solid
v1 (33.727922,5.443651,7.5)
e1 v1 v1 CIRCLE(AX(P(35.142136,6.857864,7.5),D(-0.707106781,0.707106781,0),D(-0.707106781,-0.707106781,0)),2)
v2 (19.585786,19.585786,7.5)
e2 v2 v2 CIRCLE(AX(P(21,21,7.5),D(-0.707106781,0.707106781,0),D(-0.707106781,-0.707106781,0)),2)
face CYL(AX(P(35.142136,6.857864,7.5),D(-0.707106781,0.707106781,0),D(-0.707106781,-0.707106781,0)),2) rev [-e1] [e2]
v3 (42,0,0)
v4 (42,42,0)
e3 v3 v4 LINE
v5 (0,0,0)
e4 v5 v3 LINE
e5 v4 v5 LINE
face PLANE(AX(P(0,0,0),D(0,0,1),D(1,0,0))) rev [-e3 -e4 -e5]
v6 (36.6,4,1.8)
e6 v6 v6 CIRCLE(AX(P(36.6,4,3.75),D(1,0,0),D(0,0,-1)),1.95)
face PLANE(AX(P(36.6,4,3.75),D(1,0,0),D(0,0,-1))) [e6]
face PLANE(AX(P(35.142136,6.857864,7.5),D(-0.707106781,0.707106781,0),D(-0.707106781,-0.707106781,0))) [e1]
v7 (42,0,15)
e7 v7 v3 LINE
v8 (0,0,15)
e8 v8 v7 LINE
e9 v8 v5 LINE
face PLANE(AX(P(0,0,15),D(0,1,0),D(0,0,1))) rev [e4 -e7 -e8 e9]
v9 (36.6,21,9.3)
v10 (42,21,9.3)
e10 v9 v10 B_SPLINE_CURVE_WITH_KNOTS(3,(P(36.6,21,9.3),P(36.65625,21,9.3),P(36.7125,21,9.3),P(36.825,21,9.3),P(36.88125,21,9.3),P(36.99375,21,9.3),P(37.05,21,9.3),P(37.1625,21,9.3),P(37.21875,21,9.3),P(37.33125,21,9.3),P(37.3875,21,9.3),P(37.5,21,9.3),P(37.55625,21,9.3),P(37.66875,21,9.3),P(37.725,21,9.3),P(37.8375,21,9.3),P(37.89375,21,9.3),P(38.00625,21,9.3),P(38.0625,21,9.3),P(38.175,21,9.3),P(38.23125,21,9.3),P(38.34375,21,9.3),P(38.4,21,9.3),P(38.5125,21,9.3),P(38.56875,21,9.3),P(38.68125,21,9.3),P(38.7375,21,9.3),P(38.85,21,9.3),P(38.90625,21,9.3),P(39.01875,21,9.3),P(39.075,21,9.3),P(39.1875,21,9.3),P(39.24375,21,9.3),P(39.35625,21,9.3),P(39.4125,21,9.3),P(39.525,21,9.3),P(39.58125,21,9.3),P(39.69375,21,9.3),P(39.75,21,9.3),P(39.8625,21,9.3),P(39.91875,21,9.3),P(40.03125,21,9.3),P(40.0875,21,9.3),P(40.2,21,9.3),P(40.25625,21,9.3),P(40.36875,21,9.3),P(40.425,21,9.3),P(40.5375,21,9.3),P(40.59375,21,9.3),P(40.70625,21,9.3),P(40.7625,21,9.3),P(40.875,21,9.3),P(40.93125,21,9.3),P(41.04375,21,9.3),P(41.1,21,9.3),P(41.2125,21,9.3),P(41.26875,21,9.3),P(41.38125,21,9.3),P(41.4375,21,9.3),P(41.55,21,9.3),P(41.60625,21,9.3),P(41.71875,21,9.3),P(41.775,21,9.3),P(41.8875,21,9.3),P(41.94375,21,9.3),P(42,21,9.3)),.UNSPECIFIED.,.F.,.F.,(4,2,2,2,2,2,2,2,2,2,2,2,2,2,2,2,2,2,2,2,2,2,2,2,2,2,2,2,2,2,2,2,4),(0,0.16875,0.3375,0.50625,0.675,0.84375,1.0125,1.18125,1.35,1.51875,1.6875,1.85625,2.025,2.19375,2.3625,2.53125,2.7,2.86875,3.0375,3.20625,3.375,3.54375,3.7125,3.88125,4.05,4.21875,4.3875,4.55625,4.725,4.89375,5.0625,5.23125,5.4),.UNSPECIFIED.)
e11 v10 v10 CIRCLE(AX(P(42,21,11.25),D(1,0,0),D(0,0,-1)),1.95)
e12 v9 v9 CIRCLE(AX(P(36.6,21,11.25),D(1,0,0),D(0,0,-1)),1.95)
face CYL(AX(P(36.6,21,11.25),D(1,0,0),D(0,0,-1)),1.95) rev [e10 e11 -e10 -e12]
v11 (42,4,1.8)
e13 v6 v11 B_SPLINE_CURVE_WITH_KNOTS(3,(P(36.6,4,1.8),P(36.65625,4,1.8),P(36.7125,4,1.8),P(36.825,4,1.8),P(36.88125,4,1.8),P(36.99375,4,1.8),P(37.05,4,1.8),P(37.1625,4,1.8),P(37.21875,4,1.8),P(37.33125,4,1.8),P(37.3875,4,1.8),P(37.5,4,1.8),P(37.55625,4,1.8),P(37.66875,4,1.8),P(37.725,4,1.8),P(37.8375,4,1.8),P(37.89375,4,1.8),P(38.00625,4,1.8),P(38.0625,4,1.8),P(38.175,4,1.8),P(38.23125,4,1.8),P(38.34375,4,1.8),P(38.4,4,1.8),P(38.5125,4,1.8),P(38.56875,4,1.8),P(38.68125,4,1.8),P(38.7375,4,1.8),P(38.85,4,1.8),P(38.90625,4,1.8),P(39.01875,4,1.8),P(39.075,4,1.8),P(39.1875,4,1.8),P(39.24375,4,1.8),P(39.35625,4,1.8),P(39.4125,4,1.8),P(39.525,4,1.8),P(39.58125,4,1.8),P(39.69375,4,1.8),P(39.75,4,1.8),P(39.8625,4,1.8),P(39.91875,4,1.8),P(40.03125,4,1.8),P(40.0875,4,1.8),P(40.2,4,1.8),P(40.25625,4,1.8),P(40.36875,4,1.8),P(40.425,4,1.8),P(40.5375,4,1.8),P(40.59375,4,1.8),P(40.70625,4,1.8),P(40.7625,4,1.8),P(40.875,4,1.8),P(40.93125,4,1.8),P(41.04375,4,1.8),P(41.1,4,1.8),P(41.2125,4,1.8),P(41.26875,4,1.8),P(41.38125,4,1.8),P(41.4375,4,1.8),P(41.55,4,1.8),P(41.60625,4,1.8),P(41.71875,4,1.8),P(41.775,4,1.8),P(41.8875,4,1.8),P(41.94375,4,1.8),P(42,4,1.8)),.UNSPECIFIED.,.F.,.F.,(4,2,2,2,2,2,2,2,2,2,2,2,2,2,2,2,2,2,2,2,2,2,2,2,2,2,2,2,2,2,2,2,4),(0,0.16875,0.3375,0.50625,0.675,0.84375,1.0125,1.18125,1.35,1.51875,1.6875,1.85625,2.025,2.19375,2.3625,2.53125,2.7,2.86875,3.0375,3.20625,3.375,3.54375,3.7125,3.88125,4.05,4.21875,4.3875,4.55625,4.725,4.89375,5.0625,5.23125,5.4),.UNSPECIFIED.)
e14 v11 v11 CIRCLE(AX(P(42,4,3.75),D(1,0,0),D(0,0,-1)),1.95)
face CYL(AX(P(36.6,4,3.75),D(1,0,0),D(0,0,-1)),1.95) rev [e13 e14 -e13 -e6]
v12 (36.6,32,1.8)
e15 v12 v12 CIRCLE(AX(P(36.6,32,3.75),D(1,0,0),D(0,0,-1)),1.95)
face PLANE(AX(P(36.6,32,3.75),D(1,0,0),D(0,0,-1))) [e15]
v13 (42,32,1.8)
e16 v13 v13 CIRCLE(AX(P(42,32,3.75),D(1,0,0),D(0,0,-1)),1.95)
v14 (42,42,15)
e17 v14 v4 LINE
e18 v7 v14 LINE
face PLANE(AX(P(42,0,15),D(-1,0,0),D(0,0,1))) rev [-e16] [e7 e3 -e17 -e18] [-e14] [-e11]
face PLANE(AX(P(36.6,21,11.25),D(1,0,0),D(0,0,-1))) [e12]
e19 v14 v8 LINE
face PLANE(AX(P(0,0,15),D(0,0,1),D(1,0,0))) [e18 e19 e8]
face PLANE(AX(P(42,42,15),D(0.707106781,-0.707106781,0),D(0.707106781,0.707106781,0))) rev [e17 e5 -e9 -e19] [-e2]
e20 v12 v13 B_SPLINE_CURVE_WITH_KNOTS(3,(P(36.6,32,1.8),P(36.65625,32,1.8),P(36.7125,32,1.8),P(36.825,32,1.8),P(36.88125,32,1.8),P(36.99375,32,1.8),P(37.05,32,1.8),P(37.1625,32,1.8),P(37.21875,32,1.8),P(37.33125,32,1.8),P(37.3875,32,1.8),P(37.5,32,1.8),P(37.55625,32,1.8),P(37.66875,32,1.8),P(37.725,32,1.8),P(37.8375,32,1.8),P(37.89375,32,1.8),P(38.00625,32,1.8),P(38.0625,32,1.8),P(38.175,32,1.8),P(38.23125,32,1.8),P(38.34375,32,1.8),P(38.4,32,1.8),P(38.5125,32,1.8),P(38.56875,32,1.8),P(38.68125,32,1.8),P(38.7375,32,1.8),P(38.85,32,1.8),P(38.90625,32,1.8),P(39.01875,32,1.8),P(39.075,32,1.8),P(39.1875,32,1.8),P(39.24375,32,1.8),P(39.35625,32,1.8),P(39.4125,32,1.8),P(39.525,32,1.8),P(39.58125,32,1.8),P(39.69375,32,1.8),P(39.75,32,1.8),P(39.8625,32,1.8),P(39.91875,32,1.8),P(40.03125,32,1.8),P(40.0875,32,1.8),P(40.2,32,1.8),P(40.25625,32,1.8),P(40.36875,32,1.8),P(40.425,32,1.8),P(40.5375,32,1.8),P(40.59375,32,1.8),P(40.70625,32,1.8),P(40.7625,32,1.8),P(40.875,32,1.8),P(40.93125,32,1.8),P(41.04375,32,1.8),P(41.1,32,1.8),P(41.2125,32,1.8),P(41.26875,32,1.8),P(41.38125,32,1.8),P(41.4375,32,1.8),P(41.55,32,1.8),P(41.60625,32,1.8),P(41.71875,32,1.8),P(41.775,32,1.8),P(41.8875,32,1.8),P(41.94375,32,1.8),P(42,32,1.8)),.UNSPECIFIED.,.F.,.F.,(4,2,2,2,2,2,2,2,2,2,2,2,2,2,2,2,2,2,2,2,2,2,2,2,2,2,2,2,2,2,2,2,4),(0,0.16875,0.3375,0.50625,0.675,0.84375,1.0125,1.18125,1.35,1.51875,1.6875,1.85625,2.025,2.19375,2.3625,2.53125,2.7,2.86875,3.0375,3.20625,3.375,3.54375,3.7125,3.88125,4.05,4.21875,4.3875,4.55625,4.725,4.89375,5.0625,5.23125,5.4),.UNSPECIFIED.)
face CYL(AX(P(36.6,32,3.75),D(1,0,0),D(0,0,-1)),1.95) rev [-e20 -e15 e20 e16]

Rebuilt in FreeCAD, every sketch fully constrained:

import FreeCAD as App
import Part
import Sketcher

V = App.Vector
Q = App.Units.Quantity

doc = App.newDocument("Part")
body = doc.addObject("PartDesign::Body", "Body")

# Sketch on XY plane
sketch1 = body.newObject("Sketcher::SketchObject", "Sketch")
sketch1.AttachmentSupport = (doc.getObject("XY_Plane"), [""])
sketch1.MapMode = "FlatFace"
sketch1.addGeometry([
    Part.LineSegment(V(0, 0, 0), V(42, 0, 0)),
    Part.LineSegment(V(42, 0, 0), V(42, 42, 0)),
    Part.LineSegment(V(42, 42, 0), V(0, 0, 0)),
], False)
sketch1.addConstraint([
    Sketcher.Constraint("Coincident", 0, 2, 1, 1),
    Sketcher.Constraint("Coincident", 1, 2, 2, 1),
    Sketcher.Constraint("Coincident", 2, 2, 0, 1),
    Sketcher.Constraint("Horizontal", 0),
    Sketcher.Constraint("Vertical", 1),
    Sketcher.Constraint("Coincident", 2, 2, -1, 1),
    Sketcher.Constraint("Equal", 0, 1),
    Sketcher.Constraint("DistanceX", 0, 1, 0, 2, Q("42 mm")),
])
pad1 = body.newObject("PartDesign::Pad", "Pad")
pad1.Profile = sketch1
pad1.Length = 15

# Sketch on an angled plane
sketch2 = body.newObject("Sketcher::SketchObject", "Sketch001")
sketch2.Placement = App.Placement(V(0, 0, 0), App.Rotation(V(0, 0, 1), V(0.707106781, 0.707106781, 0), V(-0.707106781, 0.707106781, 0), "ZXY"))
sketch2.addGeometry(Part.Circle(V(7.5, 29.698485, 0), V(0, 0, 1), 2), False)
sketch2.addConstraint([
    Sketcher.Constraint("Diameter", 0, Q("4 mm")),
    Sketcher.Constraint("DistanceX", -1, 1, 0, 3, Q("7.5 mm")),
    Sketcher.Constraint("DistanceY", -1, 1, 0, 3, Q("29.698485 mm")),
])
pocket1 = body.newObject("PartDesign::Pocket", "Pocket")
pocket1.Profile = sketch2
pocket1.Length = 20

# Sketch on YZ plane
sketch3 = body.newObject("Sketcher::SketchObject", "Sketch002")
sketch3.AttachmentSupport = (doc.getObject("YZ_Plane"), [""])
sketch3.MapMode = "FlatFace"
sketch3.AttachmentOffset = App.Placement(V(0, 0, 42), App.Rotation())
sketch3.addGeometry([
    Part.Circle(V(21, 11.25, 0), V(0, 0, 1), 1.95),
    Part.Circle(V(4, 3.75, 0), V(0, 0, 1), 1.95),
    Part.Circle(V(32, 3.75, 0), V(0, 0, 1), 1.95),
], False)
sketch3.addConstraint([
    Sketcher.Constraint("Equal", 0, 1),
    Sketcher.Constraint("Equal", 1, 2),
    Sketcher.Constraint("Horizontal", 1, 3, 2, 3),
    Sketcher.Constraint("Diameter", 0, Q("3.9 mm")),
    Sketcher.Constraint("DistanceX", -1, 1, 0, 3, Q("21 mm")),
    Sketcher.Constraint("DistanceX", -1, 1, 1, 3, Q("4 mm")),
    Sketcher.Constraint("DistanceX", -1, 1, 2, 3, Q("32 mm")),
    Sketcher.Constraint("DistanceY", 1, 3, 0, 3, Q("7.5 mm")),
    Sketcher.Constraint("DistanceY", -1, 1, 0, 3, Q("11.25 mm")),
])
pocket2 = body.newObject("PartDesign::Pocket", "Pocket001")
pocket2.Profile = sketch3
pocket2.Length = 5.4

doc.recompute()
